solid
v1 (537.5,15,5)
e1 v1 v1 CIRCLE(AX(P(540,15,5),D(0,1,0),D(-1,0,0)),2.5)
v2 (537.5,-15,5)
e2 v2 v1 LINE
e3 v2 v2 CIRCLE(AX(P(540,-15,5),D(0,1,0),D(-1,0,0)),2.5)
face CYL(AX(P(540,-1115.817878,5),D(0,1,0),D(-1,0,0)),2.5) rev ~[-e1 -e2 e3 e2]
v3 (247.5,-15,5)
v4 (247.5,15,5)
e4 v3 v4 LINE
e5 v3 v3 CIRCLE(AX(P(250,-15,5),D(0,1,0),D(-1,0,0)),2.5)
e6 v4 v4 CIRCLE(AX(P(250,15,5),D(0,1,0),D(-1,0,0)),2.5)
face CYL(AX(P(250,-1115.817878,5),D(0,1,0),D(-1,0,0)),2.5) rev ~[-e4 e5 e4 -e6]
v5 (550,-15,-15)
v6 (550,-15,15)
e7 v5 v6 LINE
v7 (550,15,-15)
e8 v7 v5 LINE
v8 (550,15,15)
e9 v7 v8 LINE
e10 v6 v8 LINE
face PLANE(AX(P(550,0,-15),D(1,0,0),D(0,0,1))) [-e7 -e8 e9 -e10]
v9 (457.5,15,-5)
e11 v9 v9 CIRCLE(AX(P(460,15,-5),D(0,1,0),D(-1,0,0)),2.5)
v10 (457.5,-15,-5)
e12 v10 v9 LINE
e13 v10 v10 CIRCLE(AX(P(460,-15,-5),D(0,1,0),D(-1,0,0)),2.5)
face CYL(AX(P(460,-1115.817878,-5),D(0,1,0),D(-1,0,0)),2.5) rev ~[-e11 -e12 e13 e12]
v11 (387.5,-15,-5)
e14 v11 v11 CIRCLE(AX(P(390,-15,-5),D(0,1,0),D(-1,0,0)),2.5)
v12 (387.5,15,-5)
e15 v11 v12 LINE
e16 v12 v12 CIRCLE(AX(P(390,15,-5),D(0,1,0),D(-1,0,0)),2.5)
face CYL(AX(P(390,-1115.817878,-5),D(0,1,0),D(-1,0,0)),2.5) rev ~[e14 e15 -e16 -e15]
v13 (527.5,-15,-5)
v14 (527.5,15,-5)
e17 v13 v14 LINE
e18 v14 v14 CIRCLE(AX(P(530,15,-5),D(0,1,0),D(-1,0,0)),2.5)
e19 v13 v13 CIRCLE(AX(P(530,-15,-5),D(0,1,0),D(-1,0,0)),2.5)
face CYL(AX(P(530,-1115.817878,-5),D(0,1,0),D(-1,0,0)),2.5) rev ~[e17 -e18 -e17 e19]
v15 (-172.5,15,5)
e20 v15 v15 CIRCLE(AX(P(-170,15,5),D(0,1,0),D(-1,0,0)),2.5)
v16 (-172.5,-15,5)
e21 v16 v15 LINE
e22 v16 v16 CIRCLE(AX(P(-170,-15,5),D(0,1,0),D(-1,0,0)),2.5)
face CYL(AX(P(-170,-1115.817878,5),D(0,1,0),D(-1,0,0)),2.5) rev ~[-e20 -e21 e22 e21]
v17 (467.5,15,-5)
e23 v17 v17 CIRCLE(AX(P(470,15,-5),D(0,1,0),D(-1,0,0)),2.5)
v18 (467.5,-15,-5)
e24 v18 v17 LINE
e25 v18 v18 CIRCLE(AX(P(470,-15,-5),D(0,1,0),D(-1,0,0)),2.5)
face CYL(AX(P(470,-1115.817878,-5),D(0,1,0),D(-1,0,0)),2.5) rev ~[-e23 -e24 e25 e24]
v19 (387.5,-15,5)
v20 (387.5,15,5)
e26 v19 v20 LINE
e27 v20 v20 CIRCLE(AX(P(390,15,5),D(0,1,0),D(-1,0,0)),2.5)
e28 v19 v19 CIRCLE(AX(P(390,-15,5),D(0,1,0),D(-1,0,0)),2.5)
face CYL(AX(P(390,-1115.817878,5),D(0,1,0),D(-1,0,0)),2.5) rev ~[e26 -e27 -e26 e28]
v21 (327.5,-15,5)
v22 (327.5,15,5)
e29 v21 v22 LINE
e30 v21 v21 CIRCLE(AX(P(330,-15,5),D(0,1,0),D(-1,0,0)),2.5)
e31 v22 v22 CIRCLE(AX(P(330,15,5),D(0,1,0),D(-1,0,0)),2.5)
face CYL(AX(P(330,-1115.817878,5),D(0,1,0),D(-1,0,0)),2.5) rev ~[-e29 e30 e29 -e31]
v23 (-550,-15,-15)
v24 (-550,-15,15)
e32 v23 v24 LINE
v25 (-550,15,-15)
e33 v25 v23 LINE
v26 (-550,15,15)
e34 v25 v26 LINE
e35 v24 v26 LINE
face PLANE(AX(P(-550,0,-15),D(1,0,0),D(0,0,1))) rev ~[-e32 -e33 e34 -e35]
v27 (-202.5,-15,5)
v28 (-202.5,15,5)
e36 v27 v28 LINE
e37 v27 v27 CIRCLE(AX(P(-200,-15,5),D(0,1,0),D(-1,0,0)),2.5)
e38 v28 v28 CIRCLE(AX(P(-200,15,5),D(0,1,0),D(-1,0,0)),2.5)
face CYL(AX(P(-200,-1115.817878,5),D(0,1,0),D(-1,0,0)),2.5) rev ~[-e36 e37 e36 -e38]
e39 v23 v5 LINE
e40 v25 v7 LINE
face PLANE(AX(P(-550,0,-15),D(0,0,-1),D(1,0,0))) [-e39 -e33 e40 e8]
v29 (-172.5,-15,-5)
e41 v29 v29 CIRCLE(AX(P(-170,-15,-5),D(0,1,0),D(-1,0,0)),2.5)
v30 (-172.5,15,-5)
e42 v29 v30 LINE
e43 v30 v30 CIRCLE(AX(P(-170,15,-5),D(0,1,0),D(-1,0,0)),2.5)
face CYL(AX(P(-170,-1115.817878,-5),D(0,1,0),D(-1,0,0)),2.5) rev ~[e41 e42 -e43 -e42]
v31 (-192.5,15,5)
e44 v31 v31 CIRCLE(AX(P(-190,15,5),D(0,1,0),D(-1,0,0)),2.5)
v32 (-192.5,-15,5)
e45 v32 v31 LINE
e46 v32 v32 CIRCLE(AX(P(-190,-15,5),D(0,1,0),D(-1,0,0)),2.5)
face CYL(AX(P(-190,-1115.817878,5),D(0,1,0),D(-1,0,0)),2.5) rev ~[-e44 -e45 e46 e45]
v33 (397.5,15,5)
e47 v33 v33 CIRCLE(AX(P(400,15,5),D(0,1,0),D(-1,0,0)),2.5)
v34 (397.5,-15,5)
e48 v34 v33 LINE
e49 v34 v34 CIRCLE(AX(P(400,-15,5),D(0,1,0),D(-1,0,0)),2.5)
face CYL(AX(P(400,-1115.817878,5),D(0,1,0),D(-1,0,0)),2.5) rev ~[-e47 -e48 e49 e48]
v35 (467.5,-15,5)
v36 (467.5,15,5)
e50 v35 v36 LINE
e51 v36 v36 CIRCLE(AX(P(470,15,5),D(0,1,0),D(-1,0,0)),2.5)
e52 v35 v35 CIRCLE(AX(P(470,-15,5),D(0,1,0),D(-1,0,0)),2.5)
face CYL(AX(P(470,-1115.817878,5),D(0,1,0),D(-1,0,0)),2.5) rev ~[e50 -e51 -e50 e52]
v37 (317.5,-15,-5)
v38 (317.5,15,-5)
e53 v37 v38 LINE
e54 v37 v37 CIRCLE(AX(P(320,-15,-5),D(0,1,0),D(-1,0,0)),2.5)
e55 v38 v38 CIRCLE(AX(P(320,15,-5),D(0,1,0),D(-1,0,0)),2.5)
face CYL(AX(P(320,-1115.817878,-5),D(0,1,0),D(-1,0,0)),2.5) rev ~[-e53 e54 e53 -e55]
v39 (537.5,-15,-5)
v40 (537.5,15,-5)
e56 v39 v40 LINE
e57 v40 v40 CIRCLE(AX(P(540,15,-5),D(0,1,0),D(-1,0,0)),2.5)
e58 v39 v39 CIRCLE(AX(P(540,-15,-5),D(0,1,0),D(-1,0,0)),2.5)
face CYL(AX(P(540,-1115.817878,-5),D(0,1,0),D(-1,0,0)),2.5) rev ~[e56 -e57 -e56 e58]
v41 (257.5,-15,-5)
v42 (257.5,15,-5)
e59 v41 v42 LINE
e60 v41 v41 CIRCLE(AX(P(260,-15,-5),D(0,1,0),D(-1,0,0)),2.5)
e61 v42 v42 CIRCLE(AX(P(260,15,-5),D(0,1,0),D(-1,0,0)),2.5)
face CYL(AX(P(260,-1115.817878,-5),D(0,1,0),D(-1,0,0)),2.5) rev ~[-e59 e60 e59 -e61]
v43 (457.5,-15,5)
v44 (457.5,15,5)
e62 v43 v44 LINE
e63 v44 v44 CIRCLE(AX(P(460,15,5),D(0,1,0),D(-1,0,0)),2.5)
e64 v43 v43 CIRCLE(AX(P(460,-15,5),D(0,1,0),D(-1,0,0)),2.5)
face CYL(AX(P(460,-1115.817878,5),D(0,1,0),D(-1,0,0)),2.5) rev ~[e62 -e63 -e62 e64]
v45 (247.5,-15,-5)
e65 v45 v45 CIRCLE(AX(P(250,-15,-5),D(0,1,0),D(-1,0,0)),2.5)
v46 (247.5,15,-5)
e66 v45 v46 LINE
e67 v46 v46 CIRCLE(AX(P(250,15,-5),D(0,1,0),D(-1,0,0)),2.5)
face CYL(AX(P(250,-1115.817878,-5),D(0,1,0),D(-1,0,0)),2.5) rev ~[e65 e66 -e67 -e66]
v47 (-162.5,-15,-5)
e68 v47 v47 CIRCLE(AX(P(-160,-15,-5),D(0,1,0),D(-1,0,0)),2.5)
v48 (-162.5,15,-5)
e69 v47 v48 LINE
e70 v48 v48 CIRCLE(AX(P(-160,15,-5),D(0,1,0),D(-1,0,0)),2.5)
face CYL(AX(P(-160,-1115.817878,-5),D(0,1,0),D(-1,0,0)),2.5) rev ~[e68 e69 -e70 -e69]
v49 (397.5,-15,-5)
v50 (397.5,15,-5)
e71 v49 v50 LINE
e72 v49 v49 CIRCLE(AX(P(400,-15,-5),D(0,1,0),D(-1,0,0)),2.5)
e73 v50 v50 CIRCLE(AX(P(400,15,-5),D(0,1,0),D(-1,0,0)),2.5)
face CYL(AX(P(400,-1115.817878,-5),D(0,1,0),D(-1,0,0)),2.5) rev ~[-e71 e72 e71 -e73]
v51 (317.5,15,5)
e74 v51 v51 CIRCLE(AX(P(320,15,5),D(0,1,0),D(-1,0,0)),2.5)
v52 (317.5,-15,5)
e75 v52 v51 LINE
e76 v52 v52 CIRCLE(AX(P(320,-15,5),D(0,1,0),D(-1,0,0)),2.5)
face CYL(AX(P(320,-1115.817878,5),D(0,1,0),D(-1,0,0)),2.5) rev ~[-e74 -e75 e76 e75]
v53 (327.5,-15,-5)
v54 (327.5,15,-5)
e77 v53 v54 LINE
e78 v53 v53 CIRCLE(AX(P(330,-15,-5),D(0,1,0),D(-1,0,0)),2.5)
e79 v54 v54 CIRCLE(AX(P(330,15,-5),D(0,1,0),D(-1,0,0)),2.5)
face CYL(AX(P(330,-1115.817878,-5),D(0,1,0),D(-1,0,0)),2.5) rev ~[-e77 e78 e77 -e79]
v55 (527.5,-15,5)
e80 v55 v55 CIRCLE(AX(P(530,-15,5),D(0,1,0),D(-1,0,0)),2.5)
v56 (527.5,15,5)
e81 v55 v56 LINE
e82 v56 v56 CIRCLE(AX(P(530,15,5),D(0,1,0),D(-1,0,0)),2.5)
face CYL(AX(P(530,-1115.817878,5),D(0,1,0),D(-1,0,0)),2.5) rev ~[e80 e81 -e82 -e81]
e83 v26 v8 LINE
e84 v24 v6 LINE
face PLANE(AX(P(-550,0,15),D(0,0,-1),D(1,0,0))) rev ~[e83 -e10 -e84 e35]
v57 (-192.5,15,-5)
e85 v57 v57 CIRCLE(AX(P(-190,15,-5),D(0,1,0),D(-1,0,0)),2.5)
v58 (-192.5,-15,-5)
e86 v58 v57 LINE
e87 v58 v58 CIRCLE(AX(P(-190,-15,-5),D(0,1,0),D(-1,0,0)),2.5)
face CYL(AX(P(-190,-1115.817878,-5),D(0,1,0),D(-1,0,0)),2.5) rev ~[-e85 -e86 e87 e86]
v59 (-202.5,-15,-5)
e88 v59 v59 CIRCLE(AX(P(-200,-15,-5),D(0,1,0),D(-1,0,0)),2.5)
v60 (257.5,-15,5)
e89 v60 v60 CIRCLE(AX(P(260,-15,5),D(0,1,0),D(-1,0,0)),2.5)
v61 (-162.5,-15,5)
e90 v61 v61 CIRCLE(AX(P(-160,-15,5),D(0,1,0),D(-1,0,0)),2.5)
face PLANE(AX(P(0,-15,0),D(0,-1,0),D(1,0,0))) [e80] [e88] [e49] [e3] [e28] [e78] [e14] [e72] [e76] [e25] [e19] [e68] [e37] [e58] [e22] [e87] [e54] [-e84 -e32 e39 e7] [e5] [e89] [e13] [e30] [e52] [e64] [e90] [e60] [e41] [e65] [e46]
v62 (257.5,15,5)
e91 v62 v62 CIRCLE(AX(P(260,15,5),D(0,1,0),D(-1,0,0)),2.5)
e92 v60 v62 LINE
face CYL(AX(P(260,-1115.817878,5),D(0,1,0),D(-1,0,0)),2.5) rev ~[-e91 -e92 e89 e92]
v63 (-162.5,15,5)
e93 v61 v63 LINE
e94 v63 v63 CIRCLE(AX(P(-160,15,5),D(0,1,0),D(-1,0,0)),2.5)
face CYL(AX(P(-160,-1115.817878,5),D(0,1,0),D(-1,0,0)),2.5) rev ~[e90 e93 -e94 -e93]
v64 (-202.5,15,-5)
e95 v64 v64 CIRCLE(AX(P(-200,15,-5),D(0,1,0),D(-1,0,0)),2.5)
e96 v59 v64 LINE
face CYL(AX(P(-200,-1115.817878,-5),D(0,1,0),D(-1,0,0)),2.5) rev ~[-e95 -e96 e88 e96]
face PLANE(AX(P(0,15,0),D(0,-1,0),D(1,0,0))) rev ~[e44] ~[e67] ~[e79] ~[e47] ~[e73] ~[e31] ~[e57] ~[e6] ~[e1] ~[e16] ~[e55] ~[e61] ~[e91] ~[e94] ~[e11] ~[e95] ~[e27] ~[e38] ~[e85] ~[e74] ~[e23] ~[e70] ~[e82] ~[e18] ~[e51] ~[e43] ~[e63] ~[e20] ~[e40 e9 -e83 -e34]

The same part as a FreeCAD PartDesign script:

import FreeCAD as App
import Part
import Sketcher


def add_polygon(sketch, points):
    """Adds a closed chain of lines whose ends are joined by coincident constraints."""
    first, n = sketch.GeometryCount, len(points)
    for a, b in zip(points, points[1:] + points[:1]):
        sketch.addGeometry(Part.LineSegment(App.Vector(*a, 0), App.Vector(*b, 0)), False)
    for i in range(n):
        sketch.addConstraint(Sketcher.Constraint("Coincident", first + i, 2, first + (i + 1) % n, 1))

doc = App.newDocument("Part")
body = doc.addObject("PartDesign::Body", "Body")

# Sketch on XZ plane
sketch1 = body.newObject("Sketcher::SketchObject", "Sketch")
sketch1.AttachmentSupport = (doc.getObject("XZ_Plane"), [""])
sketch1.MapMode = "FlatFace"
add_polygon(sketch1, [(-550, 15), (-550, -15), (550, -15), (550, 15)])  # lines 0-3
sketch1.addConstraint([
    Sketcher.Constraint("Vertical", 0),
    Sketcher.Constraint("Horizontal", 1),
    Sketcher.Constraint("Vertical", 2),
    Sketcher.Constraint("Horizontal", 3),
    Sketcher.Constraint("Symmetric", 0, 2, 2, 2, -1, 1),
    Sketcher.Constraint("DistanceX", 1, 1, 1, 2, 1100.0),
    Sketcher.Constraint("DistanceY", 0, 2, 0, 1, 30.0),
])
pad1 = body.newObject("PartDesign::Pad", "Pad")
pad1.Profile = sketch1
pad1.Length = 30
pad1.Midplane = True

# Sketch on XZ plane
sketch2 = body.newObject("Sketcher::SketchObject", "Sketch001")
sketch2.AttachmentSupport = (doc.getObject("XZ_Plane"), [""])
sketch2.MapMode = "FlatFace"
sketch2.AttachmentOffset = App.Placement(App.Vector(0, 0, 15), App.Rotation())
sketch2.addGeometry([
    Part.Circle(App.Vector(-170, 5, 0), App.Vector(0, 0, 1), 2.5),  # 0
    Part.Circle(App.Vector(-170, -5, 0), App.Vector(0, 0, 1), 2.5),  # 1
    Part.Circle(App.Vector(-160, -5, 0), App.Vector(0, 0, 1), 2.5),  # 2
    Part.Circle(App.Vector(-160, 5, 0), App.Vector(0, 0, 1), 2.5),  # 3
    Part.Circle(App.Vector(530, 5, 0), App.Vector(0, 0, 1), 2.5),  # 4
    Part.Circle(App.Vector(530, -5, 0), App.Vector(0, 0, 1), 2.5),  # 5
    Part.Circle(App.Vector(540, 5, 0), App.Vector(0, 0, 1), 2.5),  # 6
    Part.Circle(App.Vector(540, -5, 0), App.Vector(0, 0, 1), 2.5),  # 7
    Part.Circle(App.Vector(470, 5, 0), App.Vector(0, 0, 1), 2.5),  # 8
    Part.Circle(App.Vector(460, 5, 0), App.Vector(0, 0, 1), 2.5),  # 9
    Part.Circle(App.Vector(460, -5, 0), App.Vector(0, 0, 1), 2.5),  # 10
    Part.Circle(App.Vector(470, -5, 0), App.Vector(0, 0, 1), 2.5),  # 11
    Part.Circle(App.Vector(250, 5, 0), App.Vector(0, 0, 1), 2.5),  # 12
    Part.Circle(App.Vector(250, -5, 0), App.Vector(0, 0, 1), 2.5),  # 13
    Part.Circle(App.Vector(260, -5, 0), App.Vector(0, 0, 1), 2.5),  # 14
    Part.Circle(App.Vector(260, 5, 0), App.Vector(0, 0, 1), 2.5),  # 15
    Part.Circle(App.Vector(320, 5, 0), App.Vector(0, 0, 1), 2.5),  # 16
    Part.Circle(App.Vector(320, -5, 0), App.Vector(0, 0, 1), 2.5),  # 17
    Part.Circle(App.Vector(330, -5, 0), App.Vector(0, 0, 1), 2.5),  # 18
    Part.Circle(App.Vector(330, 5, 0), App.Vector(0, 0, 1), 2.5),  # 19
    Part.Circle(App.Vector(390, 5, 0), App.Vector(0, 0, 1), 2.5),  # 20
    Part.Circle(App.Vector(390, -5, 0), App.Vector(0, 0, 1), 2.5),  # 21
    Part.Circle(App.Vector(400, -5, 0), App.Vector(0, 0, 1), 2.5),  # 22
    Part.Circle(App.Vector(400, 5, 0), App.Vector(0, 0, 1), 2.5),  # 23
    Part.Circle(App.Vector(-190, 5, 0), App.Vector(0, 0, 1), 2.5),  # 24
    Part.Circle(App.Vector(-200, 5, 0), App.Vector(0, 0, 1), 2.5),  # 25
    Part.Circle(App.Vector(-200, -5, 0), App.Vector(0, 0, 1), 2.5),  # 26
    Part.Circle(App.Vector(-190, -5, 0), App.Vector(0, 0, 1), 2.5),  # 27
], False)
sketch2.addConstraint([
    Sketcher.Constraint("Equal", 0, 1),
    Sketcher.Constraint("Equal", 1, 2),
    Sketcher.Constraint("Equal", 2, 3),
    Sketcher.Constraint("Equal", 3, 4),
    Sketcher.Constraint("Equal", 4, 5),
    Sketcher.Constraint("Equal", 5, 6),
    Sketcher.Constraint("Equal", 6, 7),
    Sketcher.Constraint("Equal", 7, 8),
    Sketcher.Constraint("Equal", 8, 9),
    Sketcher.Constraint("Equal", 9, 10),
    Sketcher.Constraint("Equal", 10, 11),
    Sketcher.Constraint("Equal", 11, 12),
    Sketcher.Constraint("Equal", 12, 13),
    Sketcher.Constraint("Equal", 13, 14),
    Sketcher.Constraint("Equal", 14, 15),
    Sketcher.Constraint("Equal", 15, 16),
    Sketcher.Constraint("Equal", 16, 17),
    Sketcher.Constraint("Equal", 17, 18),
    Sketcher.Constraint("Equal", 18, 19),
    Sketcher.Constraint("Equal", 19, 20),
    Sketcher.Constraint("Equal", 20, 21),
    Sketcher.Constraint("Equal", 21, 22),
    Sketcher.Constraint("Equal", 22, 23),
    Sketcher.Constraint("Equal", 23, 24),
    Sketcher.Constraint("Equal", 24, 25),
    Sketcher.Constraint("Equal", 25, 26),
    Sketcher.Constraint("Equal", 26, 27),
    Sketcher.Constraint("Symmetric", 0, 3, 1, 3, -1),
    Sketcher.Constraint("Symmetric", 2, 3, 3, 3, -1),
    Sketcher.Constraint("Symmetric", 4, 3, 5, 3, -1),
    Sketcher.Constraint("Symmetric", 6, 3, 7, 3, -1),
    Sketcher.Constraint("Symmetric", 9, 3, 10, 3, -1),
    Sketcher.Constraint("Symmetric", 8, 3, 11, 3, -1),
    Sketcher.Constraint("Symmetric", 12, 3, 13, 3, -1),
    Sketcher.Constraint("Symmetric", 14, 3, 15, 3, -1),
    Sketcher.Constraint("Symmetric", 16, 3, 17, 3, -1),
    Sketcher.Constraint("Symmetric", 18, 3, 19, 3, -1),
    Sketcher.Constraint("Symmetric", 20, 3, 21, 3, -1),
    Sketcher.Constraint("Symmetric", 22, 3, 23, 3, -1),
    Sketcher.Constraint("Symmetric", 25, 3, 26, 3, -1),
    Sketcher.Constraint("Symmetric", 24, 3, 27, 3, -1),
    Sketcher.Constraint("Horizontal", 1, 3, 2, 3),
    Sketcher.Constraint("Horizontal", 3, 3, 4, 3),
    Sketcher.Constraint("Horizontal", 4, 3, 6, 3),
    Sketcher.Constraint("Horizontal", 6, 3, 8, 3),
    Sketcher.Constraint("Horizontal", 8, 3, 9, 3),
    Sketcher.Constraint("Horizontal", 9, 3, 12, 3),
    Sketcher.Constraint("Horizontal", 13, 3, 14, 3),
    Sketcher.Constraint("Horizontal", 15, 3, 16, 3),
    Sketcher.Constraint("Horizontal", 17, 3, 18, 3),
    Sketcher.Constraint("Horizontal", 19, 3, 20, 3),
    Sketcher.Constraint("Horizontal", 21, 3, 22, 3),
    Sketcher.Constraint("Horizontal", 23, 3, 24, 3),
    Sketcher.Constraint("Horizontal", 24, 3, 25, 3),
    Sketcher.Constraint("Diameter", 0, 5.0),
    Sketcher.Constraint("DistanceX", 0, 3, -1, 1, 170.0),
    Sketcher.Constraint("DistanceY", -1, 1, 0, 3, 5.0),
    Sketcher.Constraint("DistanceX", 2, 3, -1, 1, 160.0),
    Sketcher.Constraint("DistanceX", -1, 1, 4, 3, 530.0),
    Sketcher.Constraint("DistanceX", -1, 1, 6, 3, 540.0),
    Sketcher.Constraint("DistanceX", -1, 1, 8, 3, 470.0),
    Sketcher.Constraint("DistanceX", -1, 1, 9, 3, 460.0),
    Sketcher.Constraint("DistanceX", -1, 1, 12, 3, 250.0),
    Sketcher.Constraint("DistanceX", -1, 1, 14, 3, 260.0),
    Sketcher.Constraint("DistanceX", -1, 1, 16, 3, 320.0),
    Sketcher.Constraint("DistanceX", -1, 1, 18, 3, 330.0),
    Sketcher.Constraint("DistanceX", -1, 1, 20, 3, 390.0),
    Sketcher.Constraint("DistanceX", -1, 1, 22, 3, 400.0),
    Sketcher.Constraint("DistanceX", 24, 3, -1, 1, 190.0),
    Sketcher.Constraint("DistanceX", 25, 3, -1, 1, 200.0),
])
doc.recompute()
hole = body.newObject("PartDesign::Hole", "Hole")
hole.Profile = sketch2
hole.ThreadType = "None"
hole.Diameter = 5
hole.DepthType = "ThroughAll"

doc.recompute()
